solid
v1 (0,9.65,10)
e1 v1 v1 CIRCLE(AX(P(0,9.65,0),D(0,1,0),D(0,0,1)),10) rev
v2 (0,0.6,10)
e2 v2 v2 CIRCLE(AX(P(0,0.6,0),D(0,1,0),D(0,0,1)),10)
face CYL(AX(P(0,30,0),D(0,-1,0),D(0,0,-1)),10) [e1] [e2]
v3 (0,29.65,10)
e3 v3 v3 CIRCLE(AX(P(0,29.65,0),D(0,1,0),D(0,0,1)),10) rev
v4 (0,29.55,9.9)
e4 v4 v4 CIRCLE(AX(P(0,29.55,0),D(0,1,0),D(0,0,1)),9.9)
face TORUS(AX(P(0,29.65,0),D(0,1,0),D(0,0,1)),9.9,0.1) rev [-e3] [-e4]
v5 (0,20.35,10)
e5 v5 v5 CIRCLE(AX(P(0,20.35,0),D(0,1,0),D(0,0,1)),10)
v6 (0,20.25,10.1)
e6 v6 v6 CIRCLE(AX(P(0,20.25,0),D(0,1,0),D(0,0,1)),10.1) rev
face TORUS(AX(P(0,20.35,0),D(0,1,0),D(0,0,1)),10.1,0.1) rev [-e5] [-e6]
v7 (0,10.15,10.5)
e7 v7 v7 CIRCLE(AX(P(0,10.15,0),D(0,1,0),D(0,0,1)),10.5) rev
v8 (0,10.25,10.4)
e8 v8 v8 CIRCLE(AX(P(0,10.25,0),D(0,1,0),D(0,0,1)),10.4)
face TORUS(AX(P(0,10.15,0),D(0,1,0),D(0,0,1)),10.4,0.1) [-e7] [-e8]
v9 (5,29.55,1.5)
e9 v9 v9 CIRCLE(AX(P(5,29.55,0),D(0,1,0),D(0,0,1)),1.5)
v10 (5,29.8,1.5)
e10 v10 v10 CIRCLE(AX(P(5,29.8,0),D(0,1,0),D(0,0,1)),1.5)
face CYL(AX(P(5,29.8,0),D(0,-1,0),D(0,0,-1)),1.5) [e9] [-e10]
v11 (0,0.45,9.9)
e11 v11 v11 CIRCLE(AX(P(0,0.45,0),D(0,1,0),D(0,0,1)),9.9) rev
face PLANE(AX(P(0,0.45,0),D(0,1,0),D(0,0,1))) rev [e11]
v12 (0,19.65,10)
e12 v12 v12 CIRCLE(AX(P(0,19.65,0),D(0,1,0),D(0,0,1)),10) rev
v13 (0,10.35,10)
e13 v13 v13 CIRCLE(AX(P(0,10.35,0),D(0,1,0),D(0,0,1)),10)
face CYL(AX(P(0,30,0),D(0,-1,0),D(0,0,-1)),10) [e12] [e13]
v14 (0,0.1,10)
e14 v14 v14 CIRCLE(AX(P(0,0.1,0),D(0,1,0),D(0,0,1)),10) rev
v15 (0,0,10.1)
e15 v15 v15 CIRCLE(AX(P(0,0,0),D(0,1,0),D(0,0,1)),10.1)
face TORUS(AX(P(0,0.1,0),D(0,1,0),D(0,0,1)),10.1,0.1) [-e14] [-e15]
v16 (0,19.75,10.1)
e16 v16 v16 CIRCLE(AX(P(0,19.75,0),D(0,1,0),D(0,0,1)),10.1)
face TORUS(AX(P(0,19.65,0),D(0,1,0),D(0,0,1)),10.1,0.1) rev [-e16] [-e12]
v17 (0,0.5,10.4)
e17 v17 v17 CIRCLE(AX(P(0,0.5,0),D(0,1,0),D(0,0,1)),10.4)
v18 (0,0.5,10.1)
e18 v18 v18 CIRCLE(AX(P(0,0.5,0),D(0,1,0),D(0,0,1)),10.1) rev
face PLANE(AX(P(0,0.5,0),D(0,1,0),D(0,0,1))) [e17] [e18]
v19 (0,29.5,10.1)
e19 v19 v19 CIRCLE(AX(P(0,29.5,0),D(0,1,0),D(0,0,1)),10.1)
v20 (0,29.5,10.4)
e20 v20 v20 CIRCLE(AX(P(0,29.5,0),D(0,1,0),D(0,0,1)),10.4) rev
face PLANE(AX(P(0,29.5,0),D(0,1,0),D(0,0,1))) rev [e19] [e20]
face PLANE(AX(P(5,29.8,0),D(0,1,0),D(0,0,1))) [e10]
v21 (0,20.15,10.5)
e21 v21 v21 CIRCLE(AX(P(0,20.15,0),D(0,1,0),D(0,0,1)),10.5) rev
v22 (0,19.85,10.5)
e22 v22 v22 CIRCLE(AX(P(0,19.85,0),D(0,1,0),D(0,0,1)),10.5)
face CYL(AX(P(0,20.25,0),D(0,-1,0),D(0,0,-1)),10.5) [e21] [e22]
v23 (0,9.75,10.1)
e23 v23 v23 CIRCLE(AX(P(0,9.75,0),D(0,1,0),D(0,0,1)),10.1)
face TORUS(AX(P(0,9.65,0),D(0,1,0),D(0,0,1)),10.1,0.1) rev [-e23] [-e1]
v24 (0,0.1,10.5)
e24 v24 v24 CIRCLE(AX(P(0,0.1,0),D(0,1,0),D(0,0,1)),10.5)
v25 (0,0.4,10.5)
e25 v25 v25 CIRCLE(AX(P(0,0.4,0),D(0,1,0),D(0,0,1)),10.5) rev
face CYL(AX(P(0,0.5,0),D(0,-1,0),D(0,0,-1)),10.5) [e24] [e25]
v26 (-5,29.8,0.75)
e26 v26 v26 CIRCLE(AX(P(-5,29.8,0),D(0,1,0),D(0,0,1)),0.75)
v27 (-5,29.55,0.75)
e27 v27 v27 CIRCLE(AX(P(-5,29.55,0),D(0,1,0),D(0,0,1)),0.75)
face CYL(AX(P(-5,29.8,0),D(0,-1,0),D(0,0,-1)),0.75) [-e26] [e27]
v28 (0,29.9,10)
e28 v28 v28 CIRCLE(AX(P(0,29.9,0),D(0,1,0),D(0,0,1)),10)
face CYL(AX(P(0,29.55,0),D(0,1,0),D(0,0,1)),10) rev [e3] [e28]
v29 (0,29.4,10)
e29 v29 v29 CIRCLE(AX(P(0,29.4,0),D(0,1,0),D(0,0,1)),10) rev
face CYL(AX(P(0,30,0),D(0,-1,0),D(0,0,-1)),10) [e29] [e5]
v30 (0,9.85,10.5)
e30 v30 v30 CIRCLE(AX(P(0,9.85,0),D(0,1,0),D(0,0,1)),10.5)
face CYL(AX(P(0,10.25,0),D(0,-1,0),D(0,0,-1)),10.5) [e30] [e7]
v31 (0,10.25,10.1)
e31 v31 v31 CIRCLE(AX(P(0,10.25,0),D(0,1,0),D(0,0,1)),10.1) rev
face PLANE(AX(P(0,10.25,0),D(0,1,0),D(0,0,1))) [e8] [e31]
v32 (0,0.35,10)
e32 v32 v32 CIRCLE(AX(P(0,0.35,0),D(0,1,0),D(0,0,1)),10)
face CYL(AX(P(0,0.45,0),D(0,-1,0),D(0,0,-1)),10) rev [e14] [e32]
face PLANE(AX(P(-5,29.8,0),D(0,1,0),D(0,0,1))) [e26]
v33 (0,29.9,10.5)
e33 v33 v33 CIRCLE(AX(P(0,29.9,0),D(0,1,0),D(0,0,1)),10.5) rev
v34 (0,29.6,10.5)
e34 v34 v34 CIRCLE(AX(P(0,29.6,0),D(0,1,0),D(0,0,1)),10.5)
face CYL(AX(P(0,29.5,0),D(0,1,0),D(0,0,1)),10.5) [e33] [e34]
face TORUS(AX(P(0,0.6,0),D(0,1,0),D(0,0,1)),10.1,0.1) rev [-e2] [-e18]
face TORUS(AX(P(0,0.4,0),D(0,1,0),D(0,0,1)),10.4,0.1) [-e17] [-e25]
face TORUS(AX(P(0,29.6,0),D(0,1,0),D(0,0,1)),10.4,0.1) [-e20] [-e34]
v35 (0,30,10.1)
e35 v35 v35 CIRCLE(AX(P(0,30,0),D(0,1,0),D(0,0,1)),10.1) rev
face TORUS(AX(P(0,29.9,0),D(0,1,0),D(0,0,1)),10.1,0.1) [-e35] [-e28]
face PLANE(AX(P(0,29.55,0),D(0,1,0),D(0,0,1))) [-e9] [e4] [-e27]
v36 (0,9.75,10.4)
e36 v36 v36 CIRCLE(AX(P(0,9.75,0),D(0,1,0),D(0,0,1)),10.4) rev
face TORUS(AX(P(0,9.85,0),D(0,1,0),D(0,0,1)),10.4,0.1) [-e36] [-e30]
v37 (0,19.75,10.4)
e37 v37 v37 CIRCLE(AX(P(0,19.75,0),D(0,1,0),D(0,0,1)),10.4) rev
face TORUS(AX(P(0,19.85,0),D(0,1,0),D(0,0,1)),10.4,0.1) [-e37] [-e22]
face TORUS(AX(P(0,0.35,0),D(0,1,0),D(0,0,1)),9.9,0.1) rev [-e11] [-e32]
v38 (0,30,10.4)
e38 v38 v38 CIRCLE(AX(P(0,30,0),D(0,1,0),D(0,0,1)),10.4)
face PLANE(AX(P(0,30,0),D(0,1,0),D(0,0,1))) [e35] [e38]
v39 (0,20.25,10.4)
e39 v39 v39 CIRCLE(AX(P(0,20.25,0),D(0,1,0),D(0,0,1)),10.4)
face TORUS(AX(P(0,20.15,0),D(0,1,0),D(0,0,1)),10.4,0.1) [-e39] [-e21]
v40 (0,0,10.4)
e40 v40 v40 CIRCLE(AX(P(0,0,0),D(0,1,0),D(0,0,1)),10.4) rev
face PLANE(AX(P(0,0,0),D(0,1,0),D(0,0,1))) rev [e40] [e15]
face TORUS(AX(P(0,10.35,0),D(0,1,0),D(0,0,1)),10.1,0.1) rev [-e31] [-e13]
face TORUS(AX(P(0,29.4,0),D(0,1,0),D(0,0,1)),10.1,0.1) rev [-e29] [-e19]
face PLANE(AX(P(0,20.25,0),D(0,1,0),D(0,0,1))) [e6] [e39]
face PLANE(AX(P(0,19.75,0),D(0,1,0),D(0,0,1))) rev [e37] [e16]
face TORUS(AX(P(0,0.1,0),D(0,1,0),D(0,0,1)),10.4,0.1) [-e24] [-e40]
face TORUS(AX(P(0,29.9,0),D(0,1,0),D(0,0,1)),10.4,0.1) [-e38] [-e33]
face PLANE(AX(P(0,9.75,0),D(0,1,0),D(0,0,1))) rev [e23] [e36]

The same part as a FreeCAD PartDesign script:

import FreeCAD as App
import Part
import Sketcher
from FreeCAD import Vector


def edges_at(feature, points):
    """Names of the edges that pass closest to the given points."""
    edges = feature.Shape.Edges
    near = lambda p: min(range(len(edges)), key=lambda i: edges[i].distToShape(Part.Vertex(*p))[0])
    return sorted({f"Edge{near(p) + 1}" for p in points})

doc = App.newDocument("Part")
body = doc.addObject("PartDesign::Body", "Body")

# Sketch on XZ plane
sketch1 = body.newObject("Sketcher::SketchObject", "Sketch")
sketch1.AttachmentSupport = (doc.getObject("XZ_Plane"), [""])
sketch1.MapMode = "FlatFace"
sketch1.addGeometry(Part.Circle(Vector(0, 0, 0), Vector(0, 0, 1), 10), False)
sketch1.addConstraint(Sketcher.Constraint("Coincident", 0, 3, -1, 1))
sketch1.addConstraint(Sketcher.Constraint("Diameter", 0, 20.0))
pad1 = body.newObject("PartDesign::Pad", "Pad")
pad1.Profile = sketch1
pad1.Length = 30
pad1.Reversed = True

# Sketch on XZ plane
sketch2 = body.newObject("Sketcher::SketchObject", "Sketch001")
sketch2.AttachmentSupport = (doc.getObject("XZ_Plane"), [""])
sketch2.MapMode = "FlatFace"
sketch2.addGeometry(Part.Circle(Vector(0, 0, 0), Vector(0, 0, 1), 10.5), False)
sketch2.addGeometry(Part.Circle(Vector(0, 0, 0), Vector(0, 0, 1), 10), False)
sketch2.addConstraint(Sketcher.Constraint("Coincident", 0, 3, -1, 1))
sketch2.addConstraint(Sketcher.Constraint("Coincident", 1, 3, -1, 1))
sketch2.addConstraint(Sketcher.Constraint("Diameter", 0, 21.0))
sketch2.addConstraint(Sketcher.Constraint("Diameter", 1, 20.0))
pad2 = body.newObject("PartDesign::Pad", "Pad001")
pad2.Profile = sketch2
pad2.Length = 0.5
pad2.Reversed = True

# Sketch on XZ plane
sketch3 = body.newObject("Sketcher::SketchObject", "Sketch002")
sketch3.AttachmentSupport = (doc.getObject("XZ_Plane"), [""])
sketch3.MapMode = "FlatFace"
sketch3.AttachmentOffset = App.Placement(Vector(0, 0, -10), App.Rotation())
sketch3.addGeometry(Part.Circle(Vector(0, 0, 0), Vector(0, 0, 1), 10.5), False)
sketch3.addGeometry(Part.Circle(Vector(0, 0, 0), Vector(0, 0, 1), 10), False)
sketch3.addConstraint(Sketcher.Constraint("Coincident", 0, 3, -1, 1))
sketch3.addConstraint(Sketcher.Constraint("Coincident", 1, 3, -1, 1))
sketch3.addConstraint(Sketcher.Constraint("Diameter", 0, 21.0))
sketch3.addConstraint(Sketcher.Constraint("Diameter", 1, 20.0))
pad3 = body.newObject("PartDesign::Pad", "Pad002")
pad3.Profile = sketch3
pad3.Length = 0.5
pad3.Midplane = True

# Sketch on XZ plane
sketch4 = body.newObject("Sketcher::SketchObject", "Sketch003")
sketch4.AttachmentSupport = (doc.getObject("XZ_Plane"), [""])
sketch4.MapMode = "FlatFace"
sketch4.AttachmentOffset = App.Placement(Vector(0, 0, -20), App.Rotation())
sketch4.addGeometry(Part.Circle(Vector(0, 0, 0), Vector(0, 0, 1), 10.5), False)
sketch4.addGeometry(Part.Circle(Vector(0, 0, 0), Vector(0, 0, 1), 10), False)
sketch4.addConstraint(Sketcher.Constraint("Coincident", 0, 3, -1, 1))
sketch4.addConstraint(Sketcher.Constraint("Coincident", 1, 3, -1, 1))
sketch4.addConstraint(Sketcher.Constraint("Diameter", 0, 21.0))
sketch4.addConstraint(Sketcher.Constraint("Diameter", 1, 20.0))
pad4 = body.newObject("PartDesign::Pad", "Pad003")
pad4.Profile = sketch4
pad4.Length = 0.5
pad4.Midplane = True

# Sketch on XZ plane
sketch5 = body.newObject("Sketcher::SketchObject", "Sketch004")
sketch5.AttachmentSupport = (doc.getObject("XZ_Plane"), [""])
sketch5.MapMode = "FlatFace"
sketch5.AttachmentOffset = App.Placement(Vector(0, 0, -30), App.Rotation())
sketch5.addGeometry(Part.Circle(Vector(0, 0, 0), Vector(0, 0, 1), 10.5), False)
sketch5.addConstraint(Sketcher.Constraint("Coincident", 0, 3, -1, 1))
sketch5.addConstraint(Sketcher.Constraint("Diameter", 0, 21.0))
pad5 = body.newObject("PartDesign::Pad", "Pad004")
pad5.Profile = sketch5
pad5.Length = 0.5

# Sketch on XZ plane
sketch6 = body.newObject("Sketcher::SketchObject", "Sketch005")
sketch6.AttachmentSupport = (doc.getObject("XZ_Plane"), [""])
sketch6.MapMode = "FlatFace"
sketch6.AttachmentOffset = App.Placement(Vector(0, 0, -30), App.Rotation())
sketch6.addGeometry(Part.Circle(Vector(0, 0, 0), Vector(0, 0, 1), 10), False)
sketch6.addConstraint(Sketcher.Constraint("Coincident", 0, 3, -1, 1))
sketch6.addConstraint(Sketcher.Constraint("Diameter", 0, 20.0))
pocket1 = body.newObject("PartDesign::Pocket", "Pocket")
pocket1.Profile = sketch6
pocket1.Length = 0.45
pocket1.Reversed = True

# Sketch on XZ plane
sketch7 = body.newObject("Sketcher::SketchObject", "Sketch006")
sketch7.AttachmentSupport = (doc.getObject("XZ_Plane"), [""])
sketch7.MapMode = "FlatFace"
sketch7.addGeometry(Part.Circle(Vector(0, 0, 0), Vector(0, 0, 1), 10), False)
sketch7.addConstraint(Sketcher.Constraint("Coincident", 0, 3, -1, 1))
sketch7.addConstraint(Sketcher.Constraint("Diameter", 0, 20.0))
pocket2 = body.newObject("PartDesign::Pocket", "Pocket001")
pocket2.Profile = sketch7
pocket2.Length = 0.45
doc.recompute()

fillet = body.newObject("PartDesign::Fillet", "Fillet")
fillet.Base = (pocket2, edges_at(pocket2, [
    (-10, 9.75, 0),
    (-10.5, 10.25, 0),
    (-10.5, 9.75, 0),
    (-10, 10.25, 0),
    (-10, 19.75, 0),
    (-10.5, 20.25, 0),
    (-10.5, 19.75, 0),
    (-10, 20.25, 0),
    (-10, 29.5, 0),
    (-10.5, 29.5, 0),
    (-10.5, 30, 0),
    (-10, 29.55, 0),
    (-10, 30, 0),
    (-10, 0, 0),
    (-10, 0.45, 0),
    (-10.5, 0.5, 0),
    (-10.5, 0, 0),
    (-10, 0.5, 0),
]))
fillet.Radius = 0.1

# Sketch on XZ plane
sketch8 = body.newObject("Sketcher::SketchObject", "Sketch007")
sketch8.AttachmentSupport = (doc.getObject("XZ_Plane"), [""])
sketch8.MapMode = "FlatFace"
sketch8.AttachmentOffset = App.Placement(Vector(0, 0, -29.55), App.Rotation())
sketch8.addGeometry(Part.Circle(Vector(-5, 0, 0), Vector(0, 0, 1), 0.75), False)
sketch8.addGeometry(Part.Circle(Vector(5, 0, 0), Vector(0, 0, 1), 1.5), False)
sketch8.addConstraint(Sketcher.Constraint("Symmetric", 0, 3, 1, 3, -1, 1))
sketch8.addConstraint(Sketcher.Constraint("PointOnObject", 0, 3, -1))
sketch8.addConstraint(Sketcher.Constraint("Diameter", 1, 3.0))
sketch8.addConstraint(Sketcher.Constraint("Diameter", 0, 1.5))
sketch8.addConstraint(Sketcher.Constraint("DistanceX", 0, 3, -1, 1, 5.0))
pad6 = body.newObject("PartDesign::Pad", "Pad005")
pad6.Profile = sketch8
pad6.Length = 0.25
pad6.Reversed = True

doc.recompute()
